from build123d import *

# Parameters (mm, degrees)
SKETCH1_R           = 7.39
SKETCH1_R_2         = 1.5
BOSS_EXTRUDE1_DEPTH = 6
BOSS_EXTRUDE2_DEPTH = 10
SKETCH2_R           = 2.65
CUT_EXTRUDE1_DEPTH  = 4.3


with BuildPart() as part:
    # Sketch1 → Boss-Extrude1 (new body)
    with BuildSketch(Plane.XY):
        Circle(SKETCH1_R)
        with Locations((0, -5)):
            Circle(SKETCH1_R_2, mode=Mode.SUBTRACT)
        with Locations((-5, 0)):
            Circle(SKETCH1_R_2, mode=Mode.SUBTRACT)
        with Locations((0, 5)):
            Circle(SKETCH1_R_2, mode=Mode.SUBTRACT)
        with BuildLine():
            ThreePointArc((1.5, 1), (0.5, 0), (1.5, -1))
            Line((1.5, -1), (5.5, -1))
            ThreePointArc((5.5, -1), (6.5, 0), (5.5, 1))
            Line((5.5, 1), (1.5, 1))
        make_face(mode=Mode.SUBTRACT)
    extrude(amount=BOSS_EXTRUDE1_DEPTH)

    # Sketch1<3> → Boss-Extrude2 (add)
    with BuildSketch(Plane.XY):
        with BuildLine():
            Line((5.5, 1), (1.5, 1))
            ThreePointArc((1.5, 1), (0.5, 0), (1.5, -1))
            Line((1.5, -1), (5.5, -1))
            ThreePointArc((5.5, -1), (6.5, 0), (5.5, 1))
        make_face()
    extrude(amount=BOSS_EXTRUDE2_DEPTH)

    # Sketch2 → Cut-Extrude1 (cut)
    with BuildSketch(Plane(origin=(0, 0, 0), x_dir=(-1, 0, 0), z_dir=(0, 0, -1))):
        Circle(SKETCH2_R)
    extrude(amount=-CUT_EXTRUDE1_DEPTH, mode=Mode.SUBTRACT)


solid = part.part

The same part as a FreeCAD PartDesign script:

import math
import FreeCAD as App
import Part
import Sketcher

V = App.Vector
Q = App.Units.Quantity

doc = App.newDocument("Part")
body = doc.addObject("PartDesign::Body", "Body")

sketch1 = body.newObject("Sketcher::SketchObject", "Sketch")
sketch1.AttachmentSupport = (doc.getObject("XY_Plane"), [""])
sketch1.MapMode = "FlatFace"
sketch1.addGeometry([
    Part.Circle(V(0, 0, 0), V(0, 0, 1), 7.39),
    Part.Circle(V(0, -5, 0), V(0, 0, 1), 1.5),
    Part.Circle(V(-5, 0, 0), V(0, 0, 1), 1.5),
    Part.ArcOfCircle(Part.Circle(V(1.5, 0, 0), V(0, 0, 1), 1), math.radians(90), math.radians(270)),
    Part.LineSegment(V(1.5, 1, 0), V(5.5, 1, 0)),
    Part.ArcOfCircle(Part.Circle(V(5.5, 0, 0), V(0, 0, 1), 1), math.radians(-90), math.radians(90)),
    Part.LineSegment(V(5.5, -1, 0), V(1.5, -1, 0)),
    Part.Circle(V(0, 5, 0), V(0, 0, 1), 1.5),
], False)
sketch1.addConstraint([
    Sketcher.Constraint("Tangent", 3, 1, 4, 1),
    Sketcher.Constraint("Tangent", 4, 2, 5, 2),
    Sketcher.Constraint("Tangent", 5, 1, 6, 1),
    Sketcher.Constraint("Tangent", 6, 2, 3, 2),
    Sketcher.Constraint("Horizontal", 4),
    Sketcher.Constraint("Horizontal", 6),
    Sketcher.Constraint("Coincident", 0, 3, -1, 1),
    Sketcher.Constraint("Equal", 1, 2),
    Sketcher.Constraint("Equal", 2, 7),
    Sketcher.Constraint("Symmetric", 1, 3, 7, 3, -1, 1),
    Sketcher.Constraint("PointOnObject", 1, 3, -2),
    Sketcher.Constraint("PointOnObject", 2, 3, -1),
    Sketcher.Constraint("PointOnObject", 3, 3, -1),
    Sketcher.Constraint("Diameter", 1, Q("3 mm")),
    Sketcher.Constraint("Radius", 3, Q("1 mm")),
    Sketcher.Constraint("Diameter", 0, Q("14.78 mm")),
    Sketcher.Constraint("DistanceX", 4, 1, 4, 2, Q("4 mm")),
    Sketcher.Constraint("DistanceY", 1, 3, -1, 1, Q("5 mm")),
    Sketcher.Constraint("DistanceX", 2, 3, -1, 1, Q("5 mm")),
    Sketcher.Constraint("DistanceX", -1, 1, 3, 3, Q("1.5 mm")),
])
pad1 = body.newObject("PartDesign::Pad", "Pad")
pad1.Profile = sketch1
pad1.Length = 6

sketch2 = body.newObject("Sketcher::SketchObject", "Sketch001")
sketch2.AttachmentSupport = (doc.getObject("XY_Plane"), [""])
sketch2.MapMode = "FlatFace"
sketch2.addGeometry([
    Part.LineSegment(V(5.5, 1, 0), V(1.5, 1, 0)),
    Part.ArcOfCircle(Part.Circle(V(1.5, 0, 0), V(0, 0, 1), 1), math.radians(90), math.radians(270)),
    Part.LineSegment(V(1.5, -1, 0), V(5.5, -1, 0)),
    Part.ArcOfCircle(Part.Circle(V(5.5, 0, 0), V(0, 0, 1), 1), math.radians(-90), math.radians(90)),
], False)
sketch2.addConstraint([
    Sketcher.Constraint("Tangent", 0, 2, 1, 1),
    Sketcher.Constraint("Tangent", 1, 2, 2, 1),
    Sketcher.Constraint("Tangent", 2, 2, 3, 1),
    Sketcher.Constraint("Tangent", 3, 2, 0, 1),
    Sketcher.Constraint("Horizontal", 0),
    Sketcher.Constraint("Horizontal", 2),
    Sketcher.Constraint("PointOnObject", 1, 3, -1),
    Sketcher.Constraint("Radius", 1, Q("1 mm")),
    Sketcher.Constraint("DistanceX", 0, 2, 0, 1, Q("4 mm")),
    Sketcher.Constraint("DistanceX", -1, 1, 1, 3, Q("1.5 mm")),
])
pad2 = body.newObject("PartDesign::Pad", "Pad001")
pad2.Profile = sketch2
pad2.Length = 10

sketch3 = body.newObject("Sketcher::SketchObject", "Sketch002")
sketch3.AttachmentSupport = (doc.getObject("XY_Plane"), [""])
sketch3.MapMode = "FlatFace"
sketch3.addGeometry(Part.Circle(V(0, 0, 0), V(0, 0, 1), 2.65), False)
sketch3.addConstraint([
    Sketcher.Constraint("Coincident", 0, 3, -1, 1),
    Sketcher.Constraint("Diameter", 0, Q("5.3 mm")),
])
pocket1 = body.newObject("PartDesign::Pocket", "Pocket")
pocket1.Profile = sketch3
pocket1.Length = 4.3
pocket1.Reversed = True

doc.recompute()
